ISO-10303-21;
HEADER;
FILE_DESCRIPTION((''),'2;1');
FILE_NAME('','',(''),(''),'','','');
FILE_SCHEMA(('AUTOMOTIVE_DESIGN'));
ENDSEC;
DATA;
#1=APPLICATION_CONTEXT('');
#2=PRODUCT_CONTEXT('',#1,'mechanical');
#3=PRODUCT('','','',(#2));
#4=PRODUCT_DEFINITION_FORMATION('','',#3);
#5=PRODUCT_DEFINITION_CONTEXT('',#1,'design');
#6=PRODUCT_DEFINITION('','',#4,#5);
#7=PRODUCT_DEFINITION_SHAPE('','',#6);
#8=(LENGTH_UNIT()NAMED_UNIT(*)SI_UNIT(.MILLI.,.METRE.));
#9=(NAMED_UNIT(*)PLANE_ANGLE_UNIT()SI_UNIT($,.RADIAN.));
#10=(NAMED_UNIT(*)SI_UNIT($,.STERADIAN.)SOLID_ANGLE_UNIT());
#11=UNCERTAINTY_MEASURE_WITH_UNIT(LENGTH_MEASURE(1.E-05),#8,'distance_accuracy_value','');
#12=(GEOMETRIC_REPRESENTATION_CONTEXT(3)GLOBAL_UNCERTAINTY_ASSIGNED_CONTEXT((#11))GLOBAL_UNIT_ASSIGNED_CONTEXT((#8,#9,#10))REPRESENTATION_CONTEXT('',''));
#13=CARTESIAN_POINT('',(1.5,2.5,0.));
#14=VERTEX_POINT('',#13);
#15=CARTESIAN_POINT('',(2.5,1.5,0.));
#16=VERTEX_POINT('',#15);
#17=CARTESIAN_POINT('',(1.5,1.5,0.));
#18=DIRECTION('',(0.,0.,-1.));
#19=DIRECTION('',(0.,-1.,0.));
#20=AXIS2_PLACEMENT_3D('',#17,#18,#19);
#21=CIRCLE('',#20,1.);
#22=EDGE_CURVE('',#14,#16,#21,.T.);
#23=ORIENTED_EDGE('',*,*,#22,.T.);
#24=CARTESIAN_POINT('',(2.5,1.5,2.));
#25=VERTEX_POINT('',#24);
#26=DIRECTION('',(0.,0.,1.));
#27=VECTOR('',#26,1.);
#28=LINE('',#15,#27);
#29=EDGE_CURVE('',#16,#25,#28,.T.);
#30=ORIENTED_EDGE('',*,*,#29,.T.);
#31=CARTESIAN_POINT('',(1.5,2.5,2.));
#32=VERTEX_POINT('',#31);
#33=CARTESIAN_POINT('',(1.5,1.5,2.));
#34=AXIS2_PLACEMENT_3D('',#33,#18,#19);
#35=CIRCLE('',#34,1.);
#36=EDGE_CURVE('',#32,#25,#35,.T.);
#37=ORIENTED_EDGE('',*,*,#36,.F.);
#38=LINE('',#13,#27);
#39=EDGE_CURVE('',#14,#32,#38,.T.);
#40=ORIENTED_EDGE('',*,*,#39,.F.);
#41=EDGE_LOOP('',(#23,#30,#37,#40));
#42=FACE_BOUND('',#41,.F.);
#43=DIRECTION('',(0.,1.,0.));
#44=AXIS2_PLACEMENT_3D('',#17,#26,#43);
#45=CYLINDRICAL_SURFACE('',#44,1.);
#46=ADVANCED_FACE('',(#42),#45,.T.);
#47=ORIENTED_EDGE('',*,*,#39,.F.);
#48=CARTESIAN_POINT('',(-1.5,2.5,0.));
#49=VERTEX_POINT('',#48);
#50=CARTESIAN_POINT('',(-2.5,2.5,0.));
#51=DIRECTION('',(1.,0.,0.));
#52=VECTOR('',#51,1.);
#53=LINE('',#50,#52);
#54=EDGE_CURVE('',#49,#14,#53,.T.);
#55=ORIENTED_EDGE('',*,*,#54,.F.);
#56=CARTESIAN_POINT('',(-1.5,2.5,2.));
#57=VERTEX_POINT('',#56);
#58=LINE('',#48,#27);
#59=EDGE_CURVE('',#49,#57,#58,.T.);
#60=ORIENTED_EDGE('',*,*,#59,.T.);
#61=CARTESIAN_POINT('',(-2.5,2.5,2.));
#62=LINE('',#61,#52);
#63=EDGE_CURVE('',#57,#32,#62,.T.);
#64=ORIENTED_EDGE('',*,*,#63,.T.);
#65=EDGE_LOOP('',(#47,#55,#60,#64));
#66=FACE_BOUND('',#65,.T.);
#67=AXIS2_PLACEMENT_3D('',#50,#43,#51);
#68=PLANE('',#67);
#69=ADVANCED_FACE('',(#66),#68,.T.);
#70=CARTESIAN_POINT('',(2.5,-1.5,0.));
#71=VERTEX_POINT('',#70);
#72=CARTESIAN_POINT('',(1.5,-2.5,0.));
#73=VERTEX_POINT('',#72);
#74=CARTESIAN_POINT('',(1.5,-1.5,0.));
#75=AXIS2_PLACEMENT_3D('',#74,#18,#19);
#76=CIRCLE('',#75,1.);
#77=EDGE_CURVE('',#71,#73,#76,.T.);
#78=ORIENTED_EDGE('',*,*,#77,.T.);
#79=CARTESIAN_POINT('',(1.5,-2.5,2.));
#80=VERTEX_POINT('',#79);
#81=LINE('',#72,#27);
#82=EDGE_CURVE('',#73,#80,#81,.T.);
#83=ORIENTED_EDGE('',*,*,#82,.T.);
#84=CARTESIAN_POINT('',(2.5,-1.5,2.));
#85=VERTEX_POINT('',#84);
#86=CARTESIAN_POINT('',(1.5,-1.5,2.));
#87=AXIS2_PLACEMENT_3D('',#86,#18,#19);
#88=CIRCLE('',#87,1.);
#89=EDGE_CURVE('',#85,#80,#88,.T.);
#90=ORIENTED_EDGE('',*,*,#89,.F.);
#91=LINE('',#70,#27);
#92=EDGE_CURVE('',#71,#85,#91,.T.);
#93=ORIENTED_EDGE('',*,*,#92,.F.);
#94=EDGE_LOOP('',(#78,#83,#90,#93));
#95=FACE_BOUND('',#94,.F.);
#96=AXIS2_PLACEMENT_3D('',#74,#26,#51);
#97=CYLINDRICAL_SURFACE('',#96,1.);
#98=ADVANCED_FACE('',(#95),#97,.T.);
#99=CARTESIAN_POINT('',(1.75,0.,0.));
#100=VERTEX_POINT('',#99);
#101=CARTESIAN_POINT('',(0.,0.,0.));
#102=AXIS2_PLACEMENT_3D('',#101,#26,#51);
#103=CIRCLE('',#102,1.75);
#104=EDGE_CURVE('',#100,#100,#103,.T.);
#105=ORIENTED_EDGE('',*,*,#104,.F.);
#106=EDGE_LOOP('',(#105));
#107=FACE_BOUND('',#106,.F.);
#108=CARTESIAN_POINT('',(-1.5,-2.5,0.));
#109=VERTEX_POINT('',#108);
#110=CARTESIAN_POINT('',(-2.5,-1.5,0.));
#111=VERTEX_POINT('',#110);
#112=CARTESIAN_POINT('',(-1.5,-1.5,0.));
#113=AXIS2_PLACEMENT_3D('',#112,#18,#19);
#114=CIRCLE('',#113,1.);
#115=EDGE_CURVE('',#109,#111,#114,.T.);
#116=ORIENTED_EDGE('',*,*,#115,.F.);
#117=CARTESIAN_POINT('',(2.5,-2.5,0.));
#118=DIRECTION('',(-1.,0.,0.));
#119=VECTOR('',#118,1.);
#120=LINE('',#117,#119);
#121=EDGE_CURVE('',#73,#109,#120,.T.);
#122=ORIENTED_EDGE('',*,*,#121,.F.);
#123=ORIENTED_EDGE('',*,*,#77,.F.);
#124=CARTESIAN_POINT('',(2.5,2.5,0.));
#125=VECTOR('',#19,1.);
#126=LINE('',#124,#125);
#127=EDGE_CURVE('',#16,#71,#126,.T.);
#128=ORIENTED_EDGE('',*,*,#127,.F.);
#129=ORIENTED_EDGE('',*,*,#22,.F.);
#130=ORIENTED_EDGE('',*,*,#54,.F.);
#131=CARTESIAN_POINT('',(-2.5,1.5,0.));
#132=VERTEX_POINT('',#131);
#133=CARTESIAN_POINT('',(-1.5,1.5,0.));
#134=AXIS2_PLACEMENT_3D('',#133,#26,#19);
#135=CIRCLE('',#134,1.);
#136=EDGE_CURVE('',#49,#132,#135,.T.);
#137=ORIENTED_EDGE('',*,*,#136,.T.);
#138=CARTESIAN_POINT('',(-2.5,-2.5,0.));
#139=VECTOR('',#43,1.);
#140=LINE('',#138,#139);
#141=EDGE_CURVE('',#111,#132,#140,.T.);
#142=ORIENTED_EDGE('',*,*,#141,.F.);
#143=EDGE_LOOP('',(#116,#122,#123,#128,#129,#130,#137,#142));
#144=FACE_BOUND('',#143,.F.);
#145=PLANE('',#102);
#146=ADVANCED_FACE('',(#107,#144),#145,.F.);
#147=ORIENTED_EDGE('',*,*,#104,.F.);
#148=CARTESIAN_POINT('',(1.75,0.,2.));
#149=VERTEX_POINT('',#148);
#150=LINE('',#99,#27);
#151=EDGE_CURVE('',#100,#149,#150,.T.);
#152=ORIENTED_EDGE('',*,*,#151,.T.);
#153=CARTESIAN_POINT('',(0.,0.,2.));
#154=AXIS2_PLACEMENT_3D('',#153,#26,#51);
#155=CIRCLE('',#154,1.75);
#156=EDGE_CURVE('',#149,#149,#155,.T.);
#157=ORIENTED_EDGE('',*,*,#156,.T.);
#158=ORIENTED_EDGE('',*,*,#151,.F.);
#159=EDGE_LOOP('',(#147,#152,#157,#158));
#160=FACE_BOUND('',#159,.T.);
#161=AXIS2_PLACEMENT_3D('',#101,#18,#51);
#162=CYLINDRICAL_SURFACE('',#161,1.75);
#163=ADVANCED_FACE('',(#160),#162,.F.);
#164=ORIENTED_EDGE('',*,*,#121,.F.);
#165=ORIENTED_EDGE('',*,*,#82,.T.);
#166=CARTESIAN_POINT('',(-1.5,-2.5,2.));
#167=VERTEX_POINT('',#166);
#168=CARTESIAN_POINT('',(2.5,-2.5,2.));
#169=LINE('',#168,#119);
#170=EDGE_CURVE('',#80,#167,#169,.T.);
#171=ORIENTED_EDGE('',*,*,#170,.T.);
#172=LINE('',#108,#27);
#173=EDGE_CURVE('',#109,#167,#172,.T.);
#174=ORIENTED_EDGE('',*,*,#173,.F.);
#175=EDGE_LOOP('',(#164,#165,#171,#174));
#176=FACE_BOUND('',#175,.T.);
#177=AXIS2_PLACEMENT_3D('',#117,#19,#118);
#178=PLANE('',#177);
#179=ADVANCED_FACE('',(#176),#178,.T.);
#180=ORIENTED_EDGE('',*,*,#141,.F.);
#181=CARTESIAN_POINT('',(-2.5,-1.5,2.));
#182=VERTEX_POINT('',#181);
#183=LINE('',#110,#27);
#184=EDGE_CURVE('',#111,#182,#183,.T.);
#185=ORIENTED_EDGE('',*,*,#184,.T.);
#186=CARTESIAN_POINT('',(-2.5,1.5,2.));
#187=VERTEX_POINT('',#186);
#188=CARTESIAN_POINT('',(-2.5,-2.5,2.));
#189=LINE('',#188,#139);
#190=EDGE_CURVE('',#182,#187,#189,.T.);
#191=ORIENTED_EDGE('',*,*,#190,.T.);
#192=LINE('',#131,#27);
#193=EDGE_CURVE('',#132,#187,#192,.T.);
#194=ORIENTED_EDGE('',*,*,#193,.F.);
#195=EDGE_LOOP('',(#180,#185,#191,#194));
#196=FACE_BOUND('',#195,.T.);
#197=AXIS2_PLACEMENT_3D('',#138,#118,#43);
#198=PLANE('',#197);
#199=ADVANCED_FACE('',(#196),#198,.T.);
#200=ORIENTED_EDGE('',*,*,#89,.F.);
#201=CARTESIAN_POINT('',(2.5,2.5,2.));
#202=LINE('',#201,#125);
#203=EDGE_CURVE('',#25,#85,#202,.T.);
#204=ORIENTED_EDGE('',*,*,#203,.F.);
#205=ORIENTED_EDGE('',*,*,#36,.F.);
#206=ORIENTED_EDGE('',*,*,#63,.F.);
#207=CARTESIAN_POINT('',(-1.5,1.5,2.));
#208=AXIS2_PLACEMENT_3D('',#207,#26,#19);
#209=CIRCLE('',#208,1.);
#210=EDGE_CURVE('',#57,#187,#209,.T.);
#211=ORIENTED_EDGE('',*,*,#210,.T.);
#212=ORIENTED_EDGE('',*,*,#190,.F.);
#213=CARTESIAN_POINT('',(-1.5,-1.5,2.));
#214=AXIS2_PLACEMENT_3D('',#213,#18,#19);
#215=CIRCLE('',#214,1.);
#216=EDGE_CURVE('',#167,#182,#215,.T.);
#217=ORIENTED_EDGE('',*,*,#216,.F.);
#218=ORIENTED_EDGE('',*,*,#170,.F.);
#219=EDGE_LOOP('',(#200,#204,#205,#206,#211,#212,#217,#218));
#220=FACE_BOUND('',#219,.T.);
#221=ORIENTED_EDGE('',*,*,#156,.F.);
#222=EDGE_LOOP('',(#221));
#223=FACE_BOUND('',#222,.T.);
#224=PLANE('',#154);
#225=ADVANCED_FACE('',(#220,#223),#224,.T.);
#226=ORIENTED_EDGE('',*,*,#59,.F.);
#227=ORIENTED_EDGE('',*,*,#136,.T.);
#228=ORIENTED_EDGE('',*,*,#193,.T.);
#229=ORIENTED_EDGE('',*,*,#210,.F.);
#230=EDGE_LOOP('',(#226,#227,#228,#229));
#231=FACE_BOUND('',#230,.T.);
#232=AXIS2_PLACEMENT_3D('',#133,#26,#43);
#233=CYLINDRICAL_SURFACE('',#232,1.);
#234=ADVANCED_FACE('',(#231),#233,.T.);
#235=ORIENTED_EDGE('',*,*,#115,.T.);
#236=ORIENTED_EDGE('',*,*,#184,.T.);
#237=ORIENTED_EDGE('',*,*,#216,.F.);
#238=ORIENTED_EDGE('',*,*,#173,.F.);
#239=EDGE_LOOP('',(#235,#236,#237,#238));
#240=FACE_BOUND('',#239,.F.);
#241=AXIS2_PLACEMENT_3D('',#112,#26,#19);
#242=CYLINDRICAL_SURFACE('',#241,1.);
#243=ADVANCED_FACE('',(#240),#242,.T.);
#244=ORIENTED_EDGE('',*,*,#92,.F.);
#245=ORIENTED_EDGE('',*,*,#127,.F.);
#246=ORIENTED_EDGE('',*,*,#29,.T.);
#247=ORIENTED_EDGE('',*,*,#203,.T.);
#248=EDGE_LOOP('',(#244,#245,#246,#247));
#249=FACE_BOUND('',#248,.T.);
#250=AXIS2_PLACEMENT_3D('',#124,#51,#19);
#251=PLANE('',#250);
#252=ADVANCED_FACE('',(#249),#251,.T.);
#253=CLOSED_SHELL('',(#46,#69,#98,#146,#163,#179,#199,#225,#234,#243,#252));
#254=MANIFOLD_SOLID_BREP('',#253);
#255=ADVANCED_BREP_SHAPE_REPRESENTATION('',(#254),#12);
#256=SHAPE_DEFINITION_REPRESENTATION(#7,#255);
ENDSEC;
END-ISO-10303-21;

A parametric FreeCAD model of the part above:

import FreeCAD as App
import Part
import Sketcher
from FreeCAD import Vector


def edges_at(feature, points):
    """Names of the edges that pass closest to the given points."""
    edges = feature.Shape.Edges
    near = lambda p: min(range(len(edges)), key=lambda i: edges[i].distToShape(Part.Vertex(*p))[0])
    return sorted({f"Edge{near(p) + 1}" for p in points})

doc = App.newDocument("Part")
params = doc.addObject("Spreadsheet::Sheet", "Params")
for row, (alias, value) in enumerate([
    ("sketch1_diameter", "3.5 mm"),
    ("sketch1_width", "5 mm"),
    ("pad1_length", "2 mm"),
    ("fillet_radius", "1 mm"),
], start=1):
    params.set(f"A{row}", alias)
    params.set(f"B{row}", "=" + value)
    params.setAlias(f"B{row}", alias)

body = doc.addObject("PartDesign::Body", "Body")

sketch1 = doc.addObject("Sketcher::SketchObject", "Sketch")
body.addObject(sketch1)
sketch1.AttachmentSupport = (doc.XY_Plane, [""])
sketch1.MapMode = "FlatFace"
sketch1.addGeometry([
    Part.LineSegment(Vector(2.5, 2.5, 0), Vector(-2.5, 2.5, 0)),
    Part.LineSegment(Vector(-2.5, 2.5, 0), Vector(-2.5, -2.5, 0)),
    Part.LineSegment(Vector(-2.5, -2.5, 0), Vector(2.5, -2.5, 0)),
    Part.LineSegment(Vector(2.5, -2.5, 0), Vector(2.5, 2.5, 0)),
    Part.Circle(Vector(0, 0, 0), Vector(0, 0, 1), 1.8),
], False)
sketch1.addConstraint([
    Sketcher.Constraint("Coincident", 0, 2, 1, 1),
    Sketcher.Constraint("Coincident", 1, 2, 2, 1),
    Sketcher.Constraint("Coincident", 2, 2, 3, 1),
    Sketcher.Constraint("Coincident", 3, 2, 0, 1),
    Sketcher.Constraint("Horizontal", 0),
    Sketcher.Constraint("Vertical", 1),
    Sketcher.Constraint("Horizontal", 2),
    Sketcher.Constraint("Vertical", 3),
    Sketcher.Constraint("Coincident", 4, 3, -1, 1),
    Sketcher.Constraint("Symmetric", 0, 2, 2, 2, -1, 1),
    Sketcher.Constraint("Equal", 2, 1),
    Sketcher.Constraint("Diameter", 4, 3.5),
    Sketcher.Constraint("DistanceX", 0, 2, 0, 1, 5.0),
])
sketch1.setExpression("Constraints[11]", "Params.sketch1_diameter")
sketch1.setExpression("Constraints[12]", "Params.sketch1_width")
pad1 = doc.addObject("PartDesign::Pad", "Pad")
body.addObject(pad1)
pad1.Profile = sketch1
pad1.setExpression("Length", "Params.pad1_length")
doc.recompute()

fillet = doc.addObject("PartDesign::Fillet", "Fillet")
body.addObject(fillet)
fillet.Base = (pad1, edges_at(pad1, [
    (2.5, 2.5, 1),
    (2.5, -2.5, 1),
    (-2.5, 2.5, 1),
    (-2.5, -2.5, 1),
]))
fillet.setExpression("Radius", "Params.fillet_radius")

doc.recompute()
